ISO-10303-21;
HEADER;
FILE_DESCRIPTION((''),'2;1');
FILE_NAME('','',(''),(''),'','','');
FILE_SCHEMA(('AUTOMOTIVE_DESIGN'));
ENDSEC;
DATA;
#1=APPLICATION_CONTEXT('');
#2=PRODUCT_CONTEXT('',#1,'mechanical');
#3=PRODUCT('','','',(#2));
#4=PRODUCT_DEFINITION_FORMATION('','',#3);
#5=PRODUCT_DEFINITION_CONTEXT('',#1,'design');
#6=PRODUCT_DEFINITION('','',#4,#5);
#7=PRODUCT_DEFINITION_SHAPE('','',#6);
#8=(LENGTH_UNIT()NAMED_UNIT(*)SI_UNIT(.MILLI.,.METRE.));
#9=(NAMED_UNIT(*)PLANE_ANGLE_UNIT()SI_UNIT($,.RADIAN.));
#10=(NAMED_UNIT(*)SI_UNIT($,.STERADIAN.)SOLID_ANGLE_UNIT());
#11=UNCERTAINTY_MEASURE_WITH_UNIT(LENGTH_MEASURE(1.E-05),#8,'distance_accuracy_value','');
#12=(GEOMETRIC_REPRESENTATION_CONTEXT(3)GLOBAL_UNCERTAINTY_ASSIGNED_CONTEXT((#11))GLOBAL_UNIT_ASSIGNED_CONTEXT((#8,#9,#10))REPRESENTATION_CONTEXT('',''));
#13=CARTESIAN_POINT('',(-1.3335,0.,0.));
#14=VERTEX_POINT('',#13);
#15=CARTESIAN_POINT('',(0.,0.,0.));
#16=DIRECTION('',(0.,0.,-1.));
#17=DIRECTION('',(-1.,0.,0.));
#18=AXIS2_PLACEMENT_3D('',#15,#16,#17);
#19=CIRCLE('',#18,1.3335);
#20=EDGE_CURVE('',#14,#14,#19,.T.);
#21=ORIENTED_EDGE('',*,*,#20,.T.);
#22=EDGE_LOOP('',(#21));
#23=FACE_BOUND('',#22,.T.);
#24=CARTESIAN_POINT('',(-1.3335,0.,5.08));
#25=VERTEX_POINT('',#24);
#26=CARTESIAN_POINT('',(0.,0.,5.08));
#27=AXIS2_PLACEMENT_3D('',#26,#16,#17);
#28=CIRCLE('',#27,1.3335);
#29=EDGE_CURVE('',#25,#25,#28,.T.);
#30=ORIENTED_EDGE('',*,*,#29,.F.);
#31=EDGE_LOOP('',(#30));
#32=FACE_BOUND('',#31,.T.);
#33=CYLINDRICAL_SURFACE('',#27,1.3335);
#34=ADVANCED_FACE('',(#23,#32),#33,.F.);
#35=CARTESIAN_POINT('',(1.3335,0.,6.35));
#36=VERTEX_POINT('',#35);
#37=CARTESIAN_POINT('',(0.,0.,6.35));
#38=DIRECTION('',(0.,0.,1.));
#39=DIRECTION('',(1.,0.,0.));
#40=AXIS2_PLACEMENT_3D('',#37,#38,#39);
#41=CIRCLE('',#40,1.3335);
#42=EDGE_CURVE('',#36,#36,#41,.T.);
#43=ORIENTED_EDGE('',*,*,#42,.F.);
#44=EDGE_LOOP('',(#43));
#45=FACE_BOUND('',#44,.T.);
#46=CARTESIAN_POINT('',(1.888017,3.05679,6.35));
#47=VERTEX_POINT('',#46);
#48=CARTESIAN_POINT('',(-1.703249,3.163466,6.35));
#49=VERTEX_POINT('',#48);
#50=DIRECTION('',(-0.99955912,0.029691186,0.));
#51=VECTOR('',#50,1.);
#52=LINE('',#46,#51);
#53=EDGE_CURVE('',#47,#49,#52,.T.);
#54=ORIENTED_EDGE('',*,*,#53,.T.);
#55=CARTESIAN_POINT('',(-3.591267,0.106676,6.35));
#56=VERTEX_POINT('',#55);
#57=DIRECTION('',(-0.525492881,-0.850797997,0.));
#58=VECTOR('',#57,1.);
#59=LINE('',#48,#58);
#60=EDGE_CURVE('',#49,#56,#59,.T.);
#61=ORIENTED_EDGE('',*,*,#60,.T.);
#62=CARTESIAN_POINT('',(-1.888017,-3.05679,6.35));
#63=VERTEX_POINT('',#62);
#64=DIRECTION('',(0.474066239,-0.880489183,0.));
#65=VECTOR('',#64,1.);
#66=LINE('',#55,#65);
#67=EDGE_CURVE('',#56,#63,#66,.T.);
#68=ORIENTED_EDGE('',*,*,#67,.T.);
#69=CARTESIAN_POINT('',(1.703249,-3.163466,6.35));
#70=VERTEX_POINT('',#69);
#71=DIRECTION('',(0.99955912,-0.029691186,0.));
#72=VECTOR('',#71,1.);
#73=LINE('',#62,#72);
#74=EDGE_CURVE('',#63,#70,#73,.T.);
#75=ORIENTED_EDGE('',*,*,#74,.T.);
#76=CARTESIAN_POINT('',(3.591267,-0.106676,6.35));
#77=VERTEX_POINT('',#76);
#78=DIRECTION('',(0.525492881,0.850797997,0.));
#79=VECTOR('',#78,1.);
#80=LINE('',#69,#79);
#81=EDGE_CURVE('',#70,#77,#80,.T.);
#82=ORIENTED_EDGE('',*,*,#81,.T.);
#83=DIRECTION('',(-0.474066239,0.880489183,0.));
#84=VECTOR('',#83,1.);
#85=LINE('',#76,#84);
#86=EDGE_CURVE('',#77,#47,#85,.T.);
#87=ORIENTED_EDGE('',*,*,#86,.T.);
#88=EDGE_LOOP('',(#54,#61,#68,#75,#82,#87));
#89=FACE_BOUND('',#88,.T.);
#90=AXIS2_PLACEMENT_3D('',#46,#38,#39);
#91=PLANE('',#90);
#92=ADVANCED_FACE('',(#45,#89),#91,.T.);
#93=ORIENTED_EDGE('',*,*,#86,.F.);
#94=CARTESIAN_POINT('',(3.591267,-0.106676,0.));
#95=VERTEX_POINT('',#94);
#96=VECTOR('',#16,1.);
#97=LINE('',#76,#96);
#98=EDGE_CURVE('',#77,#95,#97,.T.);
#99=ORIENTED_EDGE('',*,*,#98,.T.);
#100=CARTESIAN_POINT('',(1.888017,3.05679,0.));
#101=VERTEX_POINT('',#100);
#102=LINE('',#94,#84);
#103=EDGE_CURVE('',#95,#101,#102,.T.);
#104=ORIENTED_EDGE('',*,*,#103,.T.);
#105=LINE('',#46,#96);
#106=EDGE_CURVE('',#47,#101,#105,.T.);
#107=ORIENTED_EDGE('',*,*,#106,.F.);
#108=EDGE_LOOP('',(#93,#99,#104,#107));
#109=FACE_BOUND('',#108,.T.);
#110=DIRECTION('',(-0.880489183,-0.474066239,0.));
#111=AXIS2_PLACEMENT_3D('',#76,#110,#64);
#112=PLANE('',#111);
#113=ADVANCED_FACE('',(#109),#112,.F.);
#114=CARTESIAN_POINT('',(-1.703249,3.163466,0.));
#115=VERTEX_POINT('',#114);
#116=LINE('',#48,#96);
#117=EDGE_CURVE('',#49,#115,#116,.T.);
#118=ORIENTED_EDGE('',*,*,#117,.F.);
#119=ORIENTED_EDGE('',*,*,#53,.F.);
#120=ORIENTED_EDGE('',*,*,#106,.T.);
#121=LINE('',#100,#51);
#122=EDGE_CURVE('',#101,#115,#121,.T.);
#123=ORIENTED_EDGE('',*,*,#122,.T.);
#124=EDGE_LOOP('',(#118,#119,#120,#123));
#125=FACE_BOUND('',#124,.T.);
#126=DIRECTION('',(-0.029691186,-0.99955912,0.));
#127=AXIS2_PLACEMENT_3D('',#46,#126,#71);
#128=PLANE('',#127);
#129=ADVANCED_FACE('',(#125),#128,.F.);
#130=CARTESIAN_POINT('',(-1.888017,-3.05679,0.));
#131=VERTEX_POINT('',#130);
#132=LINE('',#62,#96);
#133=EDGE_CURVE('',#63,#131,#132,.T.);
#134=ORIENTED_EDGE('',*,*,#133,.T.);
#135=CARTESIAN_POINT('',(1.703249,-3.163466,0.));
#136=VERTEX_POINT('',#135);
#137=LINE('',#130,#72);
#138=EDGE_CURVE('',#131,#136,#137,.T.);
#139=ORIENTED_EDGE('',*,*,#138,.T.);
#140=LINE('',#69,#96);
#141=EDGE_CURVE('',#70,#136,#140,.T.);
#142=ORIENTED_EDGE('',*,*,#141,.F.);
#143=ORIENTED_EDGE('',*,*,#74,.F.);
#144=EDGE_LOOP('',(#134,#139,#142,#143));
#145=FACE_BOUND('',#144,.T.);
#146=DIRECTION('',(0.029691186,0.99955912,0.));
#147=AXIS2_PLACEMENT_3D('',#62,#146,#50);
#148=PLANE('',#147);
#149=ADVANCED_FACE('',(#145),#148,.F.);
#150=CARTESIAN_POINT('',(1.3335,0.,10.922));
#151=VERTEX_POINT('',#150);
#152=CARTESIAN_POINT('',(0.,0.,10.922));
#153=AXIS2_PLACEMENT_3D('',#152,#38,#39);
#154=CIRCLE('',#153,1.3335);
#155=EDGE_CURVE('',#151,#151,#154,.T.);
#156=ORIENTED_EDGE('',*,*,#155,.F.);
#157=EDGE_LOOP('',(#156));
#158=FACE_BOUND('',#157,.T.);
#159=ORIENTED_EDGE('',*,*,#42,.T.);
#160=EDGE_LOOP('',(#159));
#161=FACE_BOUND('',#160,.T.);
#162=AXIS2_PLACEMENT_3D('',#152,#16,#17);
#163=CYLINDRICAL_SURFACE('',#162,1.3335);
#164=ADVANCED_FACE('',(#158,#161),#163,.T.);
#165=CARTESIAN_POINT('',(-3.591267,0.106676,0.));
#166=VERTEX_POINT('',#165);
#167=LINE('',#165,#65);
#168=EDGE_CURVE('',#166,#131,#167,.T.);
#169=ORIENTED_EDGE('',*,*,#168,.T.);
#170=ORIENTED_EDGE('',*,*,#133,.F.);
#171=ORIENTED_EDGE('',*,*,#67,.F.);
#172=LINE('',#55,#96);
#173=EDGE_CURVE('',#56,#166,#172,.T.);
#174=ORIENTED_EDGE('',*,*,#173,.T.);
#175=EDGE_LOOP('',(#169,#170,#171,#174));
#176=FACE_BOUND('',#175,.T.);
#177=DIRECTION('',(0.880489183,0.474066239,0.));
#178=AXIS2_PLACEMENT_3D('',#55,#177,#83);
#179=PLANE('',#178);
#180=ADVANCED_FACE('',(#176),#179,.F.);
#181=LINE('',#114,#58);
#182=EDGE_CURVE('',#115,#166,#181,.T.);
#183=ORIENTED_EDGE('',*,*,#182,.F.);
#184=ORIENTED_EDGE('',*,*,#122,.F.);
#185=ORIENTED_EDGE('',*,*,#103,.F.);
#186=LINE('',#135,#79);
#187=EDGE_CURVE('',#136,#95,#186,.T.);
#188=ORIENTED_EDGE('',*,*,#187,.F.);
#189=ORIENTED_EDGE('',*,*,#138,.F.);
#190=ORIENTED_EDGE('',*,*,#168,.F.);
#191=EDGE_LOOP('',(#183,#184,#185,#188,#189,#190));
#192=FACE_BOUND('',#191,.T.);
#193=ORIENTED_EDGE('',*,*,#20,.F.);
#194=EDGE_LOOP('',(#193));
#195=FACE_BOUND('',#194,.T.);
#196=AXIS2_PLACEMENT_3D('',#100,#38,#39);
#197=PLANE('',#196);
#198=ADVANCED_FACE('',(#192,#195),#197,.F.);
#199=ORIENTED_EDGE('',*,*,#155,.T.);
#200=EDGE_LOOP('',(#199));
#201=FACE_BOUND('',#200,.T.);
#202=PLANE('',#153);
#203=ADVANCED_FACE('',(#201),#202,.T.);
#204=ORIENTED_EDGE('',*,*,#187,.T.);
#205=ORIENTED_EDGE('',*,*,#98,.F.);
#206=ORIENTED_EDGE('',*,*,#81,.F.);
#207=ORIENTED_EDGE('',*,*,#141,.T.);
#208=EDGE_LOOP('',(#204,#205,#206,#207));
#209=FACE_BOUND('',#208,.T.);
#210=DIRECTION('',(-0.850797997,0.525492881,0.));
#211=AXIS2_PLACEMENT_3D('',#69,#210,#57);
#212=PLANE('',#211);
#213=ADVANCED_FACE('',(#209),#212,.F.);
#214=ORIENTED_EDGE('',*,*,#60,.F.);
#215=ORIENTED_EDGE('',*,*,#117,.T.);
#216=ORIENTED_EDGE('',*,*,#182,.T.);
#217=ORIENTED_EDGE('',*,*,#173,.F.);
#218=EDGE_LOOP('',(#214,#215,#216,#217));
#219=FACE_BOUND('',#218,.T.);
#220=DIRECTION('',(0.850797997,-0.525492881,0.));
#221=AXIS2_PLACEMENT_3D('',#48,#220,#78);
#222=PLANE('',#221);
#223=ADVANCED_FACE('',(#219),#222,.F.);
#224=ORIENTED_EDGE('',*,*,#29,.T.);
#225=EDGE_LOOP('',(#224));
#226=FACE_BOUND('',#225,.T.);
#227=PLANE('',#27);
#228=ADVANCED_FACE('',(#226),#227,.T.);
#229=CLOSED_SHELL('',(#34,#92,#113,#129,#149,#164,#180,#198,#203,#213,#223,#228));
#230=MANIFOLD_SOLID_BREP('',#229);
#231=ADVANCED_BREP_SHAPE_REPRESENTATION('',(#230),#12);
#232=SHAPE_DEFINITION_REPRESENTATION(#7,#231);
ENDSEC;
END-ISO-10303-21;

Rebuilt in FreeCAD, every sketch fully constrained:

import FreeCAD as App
import Part
import Sketcher
from FreeCAD import Vector
Q = App.Units.Quantity

doc = App.newDocument("Part")
body = doc.addObject("PartDesign::Body", "Body")

sketch1 = doc.addObject("Sketcher::SketchObject", "Sketch")
body.addObject(sketch1)
sketch1.AttachmentSupport = (doc.XY_Plane, [""])
sketch1.MapMode = "FlatFace"
sketch1.addGeometry([
    Part.LineSegment(Vector(1.888017, 3.05679, 0), Vector(-1.703249, 3.163466, 0)),
    Part.LineSegment(Vector(-1.703249, 3.163466, 0), Vector(-3.591267, 0.106676, 0)),
    Part.LineSegment(Vector(-3.591267, 0.106676, 0), Vector(-1.888017, -3.05679, 0)),
    Part.LineSegment(Vector(-1.888017, -3.05679, 0), Vector(1.703249, -3.163466, 0)),
    Part.LineSegment(Vector(1.703249, -3.163466, 0), Vector(3.591267, -0.106676, 0)),
    Part.LineSegment(Vector(3.591267, -0.106676, 0), Vector(1.888017, 3.05679, 0)),
], False)
sketch1.addConstraint([
    Sketcher.Constraint("Coincident", 0, 2, 1, 1),
    Sketcher.Constraint("Coincident", 1, 2, 2, 1),
    Sketcher.Constraint("Coincident", 2, 2, 3, 1),
    Sketcher.Constraint("Coincident", 3, 2, 4, 1),
    Sketcher.Constraint("Coincident", 4, 2, 5, 1),
    Sketcher.Constraint("Coincident", 5, 2, 0, 1),
    Sketcher.Constraint("Symmetric", 0, 2, 3, 2, -1, 1),
    Sketcher.Constraint("Symmetric", 1, 2, 4, 2, -1, 1),
    Sketcher.Constraint("Symmetric", 2, 2, 5, 2, -1, 1),
    Sketcher.Constraint("Equal", 0, 1),
    Sketcher.Constraint("Equal", 1, 2),
    Sketcher.Constraint("DistanceY", -1, 1, 1, 2, Q("0.0041998 in")),
    Sketcher.Constraint("DistanceY", 3, 2, 2, 2, Q("0.0041998 in")),
    Sketcher.Constraint("DistanceX", 0, 2, 3, 2, Q("3.406498 mm")),
    Sketcher.Constraint("Distance", 0, Q("3.592851 mm")),
])
pad1 = doc.addObject("PartDesign::Pad", "Pad")
body.addObject(pad1)
pad1.Profile = sketch1
pad1.Length = Q("0.25 in")

sketch2 = doc.addObject("Sketcher::SketchObject", "Sketch001")
body.addObject(sketch2)
sketch2.AttachmentSupport = (doc.XY_Plane, [""])
sketch2.MapMode = "FlatFace"
sketch2.AttachmentOffset = App.Placement(Vector(0, 0, 0.25 * 25.4), App.Rotation())
sketch2.addGeometry(Part.Circle(Vector(0, 0, 0), Vector(0, 0, 1), 1.3335), False)
sketch2.addConstraint([
    Sketcher.Constraint("Coincident", 0, 3, -1, 1),
    Sketcher.Constraint("Diameter", 0, Q("0.105 in")),
])
pad2 = doc.addObject("PartDesign::Pad", "Pad001")
body.addObject(pad2)
pad2.Profile = sketch2
pad2.Length = Q("0.18 in")

sketch3 = doc.addObject("Sketcher::SketchObject", "Sketch002")
body.addObject(sketch3)
sketch3.AttachmentSupport = (doc.XY_Plane, [""])
sketch3.MapMode = "FlatFace"
sketch3.addGeometry(Part.Circle(Vector(0, 0, 0), Vector(0, 0, 1), 1.3335), False)
sketch3.addConstraint([
    Sketcher.Constraint("Coincident", 0, 3, -1, 1),
    Sketcher.Constraint("Diameter", 0, Q("0.105 in")),
])
pocket1 = doc.addObject("PartDesign::Pocket", "Pocket")
body.addObject(pocket1)
pocket1.Profile = sketch3
pocket1.Length = Q("0.2 in")
pocket1.Reversed = True

doc.recompute()
